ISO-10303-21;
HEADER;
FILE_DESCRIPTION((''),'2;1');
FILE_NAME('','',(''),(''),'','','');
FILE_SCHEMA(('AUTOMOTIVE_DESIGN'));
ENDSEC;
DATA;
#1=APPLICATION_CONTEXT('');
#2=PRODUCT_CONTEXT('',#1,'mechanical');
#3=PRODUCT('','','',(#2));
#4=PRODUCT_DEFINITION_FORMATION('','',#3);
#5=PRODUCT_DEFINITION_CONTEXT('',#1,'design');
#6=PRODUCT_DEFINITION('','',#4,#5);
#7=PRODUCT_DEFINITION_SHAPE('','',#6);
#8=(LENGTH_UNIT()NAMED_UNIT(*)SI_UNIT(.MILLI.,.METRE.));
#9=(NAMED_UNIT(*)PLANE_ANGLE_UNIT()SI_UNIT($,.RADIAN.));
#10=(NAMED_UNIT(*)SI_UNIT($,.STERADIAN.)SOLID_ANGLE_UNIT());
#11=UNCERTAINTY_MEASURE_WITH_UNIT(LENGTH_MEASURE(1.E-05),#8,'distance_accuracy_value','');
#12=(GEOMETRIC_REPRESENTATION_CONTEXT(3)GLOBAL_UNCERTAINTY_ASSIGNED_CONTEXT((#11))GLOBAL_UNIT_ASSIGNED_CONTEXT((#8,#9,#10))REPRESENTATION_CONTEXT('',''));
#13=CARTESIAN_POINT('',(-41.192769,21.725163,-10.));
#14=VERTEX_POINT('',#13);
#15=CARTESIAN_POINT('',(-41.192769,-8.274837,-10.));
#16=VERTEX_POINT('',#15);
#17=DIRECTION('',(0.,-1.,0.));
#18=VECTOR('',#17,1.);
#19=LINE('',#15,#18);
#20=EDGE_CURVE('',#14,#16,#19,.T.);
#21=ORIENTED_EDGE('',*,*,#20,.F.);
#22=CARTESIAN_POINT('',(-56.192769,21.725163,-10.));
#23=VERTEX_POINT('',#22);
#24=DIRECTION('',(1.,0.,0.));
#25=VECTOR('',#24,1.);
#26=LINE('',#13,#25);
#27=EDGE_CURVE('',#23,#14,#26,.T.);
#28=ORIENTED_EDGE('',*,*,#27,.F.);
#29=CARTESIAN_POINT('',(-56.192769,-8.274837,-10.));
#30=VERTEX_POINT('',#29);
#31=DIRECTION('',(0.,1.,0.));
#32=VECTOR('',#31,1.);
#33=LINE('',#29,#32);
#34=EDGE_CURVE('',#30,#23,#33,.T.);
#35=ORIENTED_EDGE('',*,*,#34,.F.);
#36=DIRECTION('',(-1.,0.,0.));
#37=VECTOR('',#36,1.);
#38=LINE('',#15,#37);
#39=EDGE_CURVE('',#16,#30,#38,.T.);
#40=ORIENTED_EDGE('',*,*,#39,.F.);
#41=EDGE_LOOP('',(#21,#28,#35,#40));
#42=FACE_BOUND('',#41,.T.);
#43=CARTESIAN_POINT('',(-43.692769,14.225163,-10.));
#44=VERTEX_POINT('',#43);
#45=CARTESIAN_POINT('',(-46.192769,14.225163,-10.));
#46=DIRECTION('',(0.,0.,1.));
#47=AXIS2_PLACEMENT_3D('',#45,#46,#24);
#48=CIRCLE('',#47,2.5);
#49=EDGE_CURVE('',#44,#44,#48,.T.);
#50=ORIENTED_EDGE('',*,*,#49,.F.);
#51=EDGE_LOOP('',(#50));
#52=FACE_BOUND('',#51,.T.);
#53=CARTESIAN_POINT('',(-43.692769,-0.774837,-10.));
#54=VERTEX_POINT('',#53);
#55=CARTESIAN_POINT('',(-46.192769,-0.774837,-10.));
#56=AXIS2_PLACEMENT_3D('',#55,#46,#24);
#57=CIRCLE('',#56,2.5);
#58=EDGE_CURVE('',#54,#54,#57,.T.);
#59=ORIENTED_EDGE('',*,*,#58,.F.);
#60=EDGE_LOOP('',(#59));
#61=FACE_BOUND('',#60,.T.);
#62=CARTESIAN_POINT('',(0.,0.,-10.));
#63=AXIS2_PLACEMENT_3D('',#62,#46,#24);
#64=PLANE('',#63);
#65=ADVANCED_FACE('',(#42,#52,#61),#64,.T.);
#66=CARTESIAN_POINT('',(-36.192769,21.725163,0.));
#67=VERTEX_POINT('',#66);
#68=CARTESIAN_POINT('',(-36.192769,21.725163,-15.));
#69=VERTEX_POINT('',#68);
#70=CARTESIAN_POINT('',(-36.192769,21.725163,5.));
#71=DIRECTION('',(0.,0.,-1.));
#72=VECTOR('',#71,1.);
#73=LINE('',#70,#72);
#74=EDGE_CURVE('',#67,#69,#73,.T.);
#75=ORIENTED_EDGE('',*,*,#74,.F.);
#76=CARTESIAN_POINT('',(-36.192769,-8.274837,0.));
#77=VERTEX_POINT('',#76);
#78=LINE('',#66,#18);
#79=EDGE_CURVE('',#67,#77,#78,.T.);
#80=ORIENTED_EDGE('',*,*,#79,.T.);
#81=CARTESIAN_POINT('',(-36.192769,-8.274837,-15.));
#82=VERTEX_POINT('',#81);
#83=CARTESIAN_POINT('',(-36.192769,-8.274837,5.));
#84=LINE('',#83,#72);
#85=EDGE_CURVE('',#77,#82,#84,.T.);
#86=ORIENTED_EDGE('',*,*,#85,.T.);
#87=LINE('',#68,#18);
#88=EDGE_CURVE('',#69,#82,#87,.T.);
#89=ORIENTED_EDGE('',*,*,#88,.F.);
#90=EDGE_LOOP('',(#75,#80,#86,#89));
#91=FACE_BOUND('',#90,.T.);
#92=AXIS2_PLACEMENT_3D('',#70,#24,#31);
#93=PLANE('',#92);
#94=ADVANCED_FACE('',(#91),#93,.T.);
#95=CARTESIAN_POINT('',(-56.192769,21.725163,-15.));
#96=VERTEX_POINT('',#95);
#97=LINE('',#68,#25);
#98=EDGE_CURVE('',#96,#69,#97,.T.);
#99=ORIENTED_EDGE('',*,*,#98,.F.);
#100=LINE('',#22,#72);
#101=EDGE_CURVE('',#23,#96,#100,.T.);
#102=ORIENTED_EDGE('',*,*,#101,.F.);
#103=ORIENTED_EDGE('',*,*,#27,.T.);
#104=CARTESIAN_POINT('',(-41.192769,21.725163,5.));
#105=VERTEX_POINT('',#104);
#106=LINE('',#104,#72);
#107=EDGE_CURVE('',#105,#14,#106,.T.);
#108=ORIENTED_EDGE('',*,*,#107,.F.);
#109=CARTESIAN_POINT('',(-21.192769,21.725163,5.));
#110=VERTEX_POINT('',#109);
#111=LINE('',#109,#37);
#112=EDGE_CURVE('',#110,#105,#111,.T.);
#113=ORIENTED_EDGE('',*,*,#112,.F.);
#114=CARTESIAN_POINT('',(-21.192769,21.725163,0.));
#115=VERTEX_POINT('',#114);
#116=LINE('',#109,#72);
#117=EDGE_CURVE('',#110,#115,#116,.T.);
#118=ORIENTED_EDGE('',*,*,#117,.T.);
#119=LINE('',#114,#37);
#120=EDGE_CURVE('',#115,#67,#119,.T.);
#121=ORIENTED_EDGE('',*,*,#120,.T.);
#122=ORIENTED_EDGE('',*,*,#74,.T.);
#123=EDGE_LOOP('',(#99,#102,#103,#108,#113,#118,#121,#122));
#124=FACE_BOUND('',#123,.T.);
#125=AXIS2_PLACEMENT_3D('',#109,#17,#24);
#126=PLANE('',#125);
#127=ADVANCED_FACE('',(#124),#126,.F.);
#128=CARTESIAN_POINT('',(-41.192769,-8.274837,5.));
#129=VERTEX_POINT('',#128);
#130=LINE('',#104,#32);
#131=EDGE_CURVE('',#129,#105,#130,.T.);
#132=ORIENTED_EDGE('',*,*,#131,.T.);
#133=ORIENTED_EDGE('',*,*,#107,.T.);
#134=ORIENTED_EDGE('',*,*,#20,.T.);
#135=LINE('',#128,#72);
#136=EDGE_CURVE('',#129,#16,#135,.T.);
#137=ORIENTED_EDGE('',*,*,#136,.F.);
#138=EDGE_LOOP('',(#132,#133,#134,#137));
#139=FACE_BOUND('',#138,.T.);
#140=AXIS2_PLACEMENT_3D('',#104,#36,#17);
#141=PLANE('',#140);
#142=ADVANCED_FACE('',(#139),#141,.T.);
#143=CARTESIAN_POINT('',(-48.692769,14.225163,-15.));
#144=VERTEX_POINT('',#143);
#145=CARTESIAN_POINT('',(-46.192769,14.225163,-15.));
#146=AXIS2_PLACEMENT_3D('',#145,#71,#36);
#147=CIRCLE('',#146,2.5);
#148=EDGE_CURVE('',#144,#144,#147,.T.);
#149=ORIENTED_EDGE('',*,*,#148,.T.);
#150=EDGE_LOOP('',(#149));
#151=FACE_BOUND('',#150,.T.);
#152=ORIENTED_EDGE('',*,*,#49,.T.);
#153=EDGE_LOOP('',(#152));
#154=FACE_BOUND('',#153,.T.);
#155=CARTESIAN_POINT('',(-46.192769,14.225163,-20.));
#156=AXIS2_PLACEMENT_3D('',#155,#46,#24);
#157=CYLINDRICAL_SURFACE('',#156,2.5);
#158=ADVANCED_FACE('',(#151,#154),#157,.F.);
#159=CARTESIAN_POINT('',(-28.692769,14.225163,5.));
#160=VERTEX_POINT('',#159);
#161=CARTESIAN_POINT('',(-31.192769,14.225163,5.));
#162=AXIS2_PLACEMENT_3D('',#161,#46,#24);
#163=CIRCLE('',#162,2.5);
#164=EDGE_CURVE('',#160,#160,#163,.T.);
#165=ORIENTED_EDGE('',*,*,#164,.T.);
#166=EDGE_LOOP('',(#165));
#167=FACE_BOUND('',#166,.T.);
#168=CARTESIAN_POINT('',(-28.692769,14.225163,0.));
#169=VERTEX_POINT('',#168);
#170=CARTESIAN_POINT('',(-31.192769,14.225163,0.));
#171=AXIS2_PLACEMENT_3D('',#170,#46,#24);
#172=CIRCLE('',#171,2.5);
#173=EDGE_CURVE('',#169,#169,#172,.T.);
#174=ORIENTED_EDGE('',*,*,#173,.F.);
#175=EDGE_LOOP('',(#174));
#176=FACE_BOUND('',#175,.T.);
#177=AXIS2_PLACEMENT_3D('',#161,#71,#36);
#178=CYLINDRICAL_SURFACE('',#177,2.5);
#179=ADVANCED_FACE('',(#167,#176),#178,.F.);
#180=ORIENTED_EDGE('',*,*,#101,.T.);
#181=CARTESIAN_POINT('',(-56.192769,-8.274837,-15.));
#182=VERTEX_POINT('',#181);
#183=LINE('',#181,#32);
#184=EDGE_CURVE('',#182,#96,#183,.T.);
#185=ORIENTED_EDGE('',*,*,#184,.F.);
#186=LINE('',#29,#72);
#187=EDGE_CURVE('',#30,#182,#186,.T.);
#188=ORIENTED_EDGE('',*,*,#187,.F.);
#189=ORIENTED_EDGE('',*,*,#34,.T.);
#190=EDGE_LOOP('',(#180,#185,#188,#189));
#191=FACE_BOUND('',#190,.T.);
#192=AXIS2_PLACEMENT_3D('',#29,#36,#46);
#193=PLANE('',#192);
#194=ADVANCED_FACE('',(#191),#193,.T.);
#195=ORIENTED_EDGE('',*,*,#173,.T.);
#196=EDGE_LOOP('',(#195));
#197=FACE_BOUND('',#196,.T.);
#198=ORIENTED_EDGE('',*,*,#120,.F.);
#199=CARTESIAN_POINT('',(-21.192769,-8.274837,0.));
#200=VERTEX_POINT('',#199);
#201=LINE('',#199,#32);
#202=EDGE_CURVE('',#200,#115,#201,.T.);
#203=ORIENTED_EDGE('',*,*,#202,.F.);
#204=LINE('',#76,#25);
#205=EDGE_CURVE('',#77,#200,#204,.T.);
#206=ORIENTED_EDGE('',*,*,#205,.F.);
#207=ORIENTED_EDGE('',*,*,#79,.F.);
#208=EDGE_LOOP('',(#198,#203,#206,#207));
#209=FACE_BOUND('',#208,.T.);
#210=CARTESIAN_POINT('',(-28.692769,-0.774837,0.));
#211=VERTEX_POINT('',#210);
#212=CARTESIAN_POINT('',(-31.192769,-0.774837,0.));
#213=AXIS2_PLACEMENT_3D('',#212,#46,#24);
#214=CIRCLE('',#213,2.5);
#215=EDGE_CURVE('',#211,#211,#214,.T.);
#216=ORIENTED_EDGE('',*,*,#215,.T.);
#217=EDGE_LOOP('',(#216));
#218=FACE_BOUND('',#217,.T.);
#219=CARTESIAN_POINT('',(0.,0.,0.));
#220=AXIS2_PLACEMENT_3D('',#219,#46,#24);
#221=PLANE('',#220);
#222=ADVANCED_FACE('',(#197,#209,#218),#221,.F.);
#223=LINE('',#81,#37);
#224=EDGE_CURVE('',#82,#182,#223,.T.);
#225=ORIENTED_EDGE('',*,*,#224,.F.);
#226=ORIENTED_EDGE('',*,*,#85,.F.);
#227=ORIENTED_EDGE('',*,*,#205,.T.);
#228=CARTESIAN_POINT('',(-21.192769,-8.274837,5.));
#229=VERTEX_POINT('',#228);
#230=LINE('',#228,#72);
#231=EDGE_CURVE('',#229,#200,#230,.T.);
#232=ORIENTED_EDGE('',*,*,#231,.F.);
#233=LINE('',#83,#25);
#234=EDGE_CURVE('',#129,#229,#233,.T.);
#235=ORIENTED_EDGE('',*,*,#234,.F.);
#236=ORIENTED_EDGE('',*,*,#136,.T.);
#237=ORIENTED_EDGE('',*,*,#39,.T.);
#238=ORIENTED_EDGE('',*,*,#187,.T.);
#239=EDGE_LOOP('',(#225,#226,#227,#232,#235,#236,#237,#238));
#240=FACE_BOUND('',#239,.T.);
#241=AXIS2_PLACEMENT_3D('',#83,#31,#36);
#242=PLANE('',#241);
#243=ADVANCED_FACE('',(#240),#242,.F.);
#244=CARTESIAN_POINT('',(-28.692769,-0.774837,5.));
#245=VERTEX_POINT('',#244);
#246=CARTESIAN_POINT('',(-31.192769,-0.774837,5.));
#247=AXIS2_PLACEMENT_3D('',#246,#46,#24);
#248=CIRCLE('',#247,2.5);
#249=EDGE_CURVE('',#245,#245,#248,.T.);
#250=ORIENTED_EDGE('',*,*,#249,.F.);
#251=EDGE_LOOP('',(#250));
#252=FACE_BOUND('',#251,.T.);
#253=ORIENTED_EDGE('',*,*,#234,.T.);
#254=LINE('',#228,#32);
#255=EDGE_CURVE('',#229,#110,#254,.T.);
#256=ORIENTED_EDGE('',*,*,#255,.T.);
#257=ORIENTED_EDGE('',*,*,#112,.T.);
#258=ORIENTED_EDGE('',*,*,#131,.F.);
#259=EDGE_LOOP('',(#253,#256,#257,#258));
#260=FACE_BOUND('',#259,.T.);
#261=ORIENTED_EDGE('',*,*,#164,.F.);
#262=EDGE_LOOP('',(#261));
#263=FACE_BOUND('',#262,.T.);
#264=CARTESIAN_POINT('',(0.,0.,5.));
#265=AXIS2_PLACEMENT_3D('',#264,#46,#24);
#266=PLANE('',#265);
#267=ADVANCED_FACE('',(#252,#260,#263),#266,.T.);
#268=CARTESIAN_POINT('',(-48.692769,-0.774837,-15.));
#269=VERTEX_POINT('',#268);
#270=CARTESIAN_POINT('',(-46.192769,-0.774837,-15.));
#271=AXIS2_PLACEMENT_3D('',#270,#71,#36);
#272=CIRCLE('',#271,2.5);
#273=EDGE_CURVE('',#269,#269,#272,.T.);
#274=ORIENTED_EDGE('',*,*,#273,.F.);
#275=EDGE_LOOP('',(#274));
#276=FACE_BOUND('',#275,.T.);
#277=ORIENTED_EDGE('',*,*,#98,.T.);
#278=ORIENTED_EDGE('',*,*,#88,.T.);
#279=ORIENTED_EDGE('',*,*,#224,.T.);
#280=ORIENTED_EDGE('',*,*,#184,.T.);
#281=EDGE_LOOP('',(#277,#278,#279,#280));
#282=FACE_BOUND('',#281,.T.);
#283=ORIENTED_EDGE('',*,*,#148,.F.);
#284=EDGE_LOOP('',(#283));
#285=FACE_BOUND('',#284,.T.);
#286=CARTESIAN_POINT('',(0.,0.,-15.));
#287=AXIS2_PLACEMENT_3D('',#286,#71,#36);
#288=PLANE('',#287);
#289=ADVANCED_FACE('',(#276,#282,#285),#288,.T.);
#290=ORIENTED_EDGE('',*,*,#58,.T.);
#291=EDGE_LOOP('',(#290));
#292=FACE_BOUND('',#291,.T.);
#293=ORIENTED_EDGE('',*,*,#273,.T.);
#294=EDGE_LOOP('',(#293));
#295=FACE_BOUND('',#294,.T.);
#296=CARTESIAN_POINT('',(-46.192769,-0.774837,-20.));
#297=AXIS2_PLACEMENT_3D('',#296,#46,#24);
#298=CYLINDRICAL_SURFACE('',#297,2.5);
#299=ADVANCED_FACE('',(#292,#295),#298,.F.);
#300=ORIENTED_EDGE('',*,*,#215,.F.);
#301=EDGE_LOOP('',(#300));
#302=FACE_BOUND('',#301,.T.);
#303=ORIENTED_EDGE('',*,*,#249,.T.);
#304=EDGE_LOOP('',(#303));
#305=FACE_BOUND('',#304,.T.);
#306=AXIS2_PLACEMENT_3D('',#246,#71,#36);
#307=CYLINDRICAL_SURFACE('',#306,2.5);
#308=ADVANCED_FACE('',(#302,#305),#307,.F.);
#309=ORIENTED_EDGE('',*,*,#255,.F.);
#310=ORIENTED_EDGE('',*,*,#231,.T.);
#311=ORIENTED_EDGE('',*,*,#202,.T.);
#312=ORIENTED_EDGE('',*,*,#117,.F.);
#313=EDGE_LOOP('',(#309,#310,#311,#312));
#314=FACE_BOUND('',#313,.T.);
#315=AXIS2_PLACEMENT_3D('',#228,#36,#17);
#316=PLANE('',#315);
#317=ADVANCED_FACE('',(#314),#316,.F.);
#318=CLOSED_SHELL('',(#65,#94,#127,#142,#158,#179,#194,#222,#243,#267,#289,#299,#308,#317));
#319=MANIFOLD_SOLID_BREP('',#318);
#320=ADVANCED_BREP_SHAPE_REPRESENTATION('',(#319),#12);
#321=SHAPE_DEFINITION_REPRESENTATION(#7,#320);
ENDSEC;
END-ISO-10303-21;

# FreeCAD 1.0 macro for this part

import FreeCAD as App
import Part
import Sketcher
from FreeCAD import Vector
Q = App.Units.Quantity


def add_polygon(sketch, points):
    """Adds a closed chain of lines whose ends are joined by coincident constraints."""
    first, n = sketch.GeometryCount, len(points)
    for a, b in zip(points, points[1:] + points[:1]):
        sketch.addGeometry(Part.LineSegment(App.Vector(*a, 0), App.Vector(*b, 0)), False)
    for i in range(n):
        sketch.addConstraint(Sketcher.Constraint("Coincident", first + i, 2, first + (i + 1) % n, 1))

doc = App.newDocument("Part")
body = doc.addObject("PartDesign::Body", "Body")

# Sketch on XY plane
sketch1 = body.newObject("Sketcher::SketchObject", "Sketch")
sketch1.AttachmentSupport = (doc.getObject("XY_Plane"), [""])
sketch1.MapMode = "FlatFace"
add_polygon(sketch1, [(-36.2, 21.7), (-36.2, -8.3), (-21.2, -8.3), (-21.2, 21.7)])  # lines 0-3
sketch1.addGeometry(Part.Circle(Vector(-31.2, -0.8, 0), Vector(0, 0, 1), 2.5), False)  # 4
sketch1.addGeometry(Part.Circle(Vector(-31.2, 14.2, 0), Vector(0, 0, 1), 2.5), False)  # 5
sketch1.addConstraint([
    Sketcher.Constraint("Vertical", 0),
    Sketcher.Constraint("Horizontal", 1),
    Sketcher.Constraint("Vertical", 2),
    Sketcher.Constraint("Horizontal", 3),
    Sketcher.Constraint("Equal", 4, 5),
    Sketcher.Constraint("Vertical", 4, 3, 5, 3),
    Sketcher.Constraint("Diameter", 4, Q("5 mm")),
    Sketcher.Constraint("DistanceX", 1, 1, 1, 2, Q("15 mm")),
    Sketcher.Constraint("DistanceY", 0, 2, 0, 1, Q("30 mm")),
    Sketcher.Constraint("DistanceY", 4, 3, 5, 3, Q("15 mm")),
    Sketcher.Constraint("DistanceX", 0, 2, 4, 3, Q("5 mm")),
    Sketcher.Constraint("DistanceY", 0, 2, 4, 3, Q("7.5 mm")),
    Sketcher.Constraint("DistanceX", 4, 3, -1, 1, Q("31.192769 mm")),
    Sketcher.Constraint("DistanceY", 4, 3, -1, 1, Q("0.774837 mm")),
])
pad1 = body.newObject("PartDesign::Pad", "Pad")
pad1.Profile = sketch1
pad1.Length = 5

# Sketch on XY plane
sketch2 = body.newObject("Sketcher::SketchObject", "Sketch001")
sketch2.AttachmentSupport = (doc.getObject("XY_Plane"), [""])
sketch2.MapMode = "FlatFace"
add_polygon(sketch2, [(-36, 22), (-36, -8), (-41, -8), (-41, 22)])  # lines 0-3
sketch2.addConstraint([
    Sketcher.Constraint("Vertical", 0),
    Sketcher.Constraint("Horizontal", 1),
    Sketcher.Constraint("Vertical", 2),
    Sketcher.Constraint("Horizontal", 3),
    Sketcher.Constraint("DistanceX", 1, 2, 1, 1, Q("5 mm")),
    Sketcher.Constraint("DistanceY", 0, 2, 0, 1, Q("30 mm")),
    Sketcher.Constraint("DistanceX", 0, 2, -1, 1, Q("36.192769 mm")),
    Sketcher.Constraint("DistanceY", 0, 2, -1, 1, Q("8.274837 mm")),
])
pad2 = body.newObject("PartDesign::Pad", "Pad001")
pad2.Profile = sketch2
pad2.Type = "TwoLengths"
pad2.Length = 15
pad2.Length2 = 5
pad2.Reversed = True

# Sketch on XY plane
sketch3 = body.newObject("Sketcher::SketchObject", "Sketch002")
sketch3.AttachmentSupport = (doc.getObject("XY_Plane"), [""])
sketch3.MapMode = "FlatFace"
sketch3.AttachmentOffset = App.Placement(Vector(0, 0, -15), App.Rotation())
add_polygon(sketch3, [(-41, 22), (-41, -8), (-56, -8), (-56, 22)])  # lines 0-3
sketch3.addConstraint([
    Sketcher.Constraint("Vertical", 0),
    Sketcher.Constraint("Horizontal", 1),
    Sketcher.Constraint("Vertical", 2),
    Sketcher.Constraint("Horizontal", 3),
    Sketcher.Constraint("DistanceX", 1, 2, 1, 1, Q("15 mm")),
    Sketcher.Constraint("DistanceY", 0, 2, 0, 1, Q("30 mm")),
    Sketcher.Constraint("DistanceX", 0, 2, -1, 1, Q("41.192769 mm")),
    Sketcher.Constraint("DistanceY", 0, 2, -1, 1, Q("8.274837 mm")),
])
pad3 = body.newObject("PartDesign::Pad", "Pad002")
pad3.Profile = sketch3
pad3.Length = 5

# Sketch on XY plane
sketch4 = body.newObject("Sketcher::SketchObject", "Sketch003")
sketch4.AttachmentSupport = (doc.getObject("XY_Plane"), [""])
sketch4.MapMode = "FlatFace"
sketch4.AttachmentOffset = App.Placement(Vector(0, 0, -10), App.Rotation())
sketch4.addGeometry([
    Part.Circle(Vector(-46.2, 14.2, 0), Vector(0, 0, 1), 2.5),
    Part.Circle(Vector(-46.2, -0.8, 0), Vector(0, 0, 1), 2.5),
], False)
sketch4.addConstraint([
    Sketcher.Constraint("Equal", 0, 1),
    Sketcher.Constraint("Vertical", 0, 3, 1, 3),
    Sketcher.Constraint("Diameter", 0, Q("5 mm")),
    Sketcher.Constraint("DistanceY", 1, 3, 0, 3, Q("15 mm")),
    Sketcher.Constraint("DistanceX", 0, 3, -1, 1, Q("46.192769 mm")),
    Sketcher.Constraint("DistanceY", -1, 1, 0, 3, Q("14.225163 mm")),
])
pocket1 = body.newObject("PartDesign::Pocket", "Pocket")
pocket1.Profile = sketch4
pocket1.Length = 10

doc.recompute()
